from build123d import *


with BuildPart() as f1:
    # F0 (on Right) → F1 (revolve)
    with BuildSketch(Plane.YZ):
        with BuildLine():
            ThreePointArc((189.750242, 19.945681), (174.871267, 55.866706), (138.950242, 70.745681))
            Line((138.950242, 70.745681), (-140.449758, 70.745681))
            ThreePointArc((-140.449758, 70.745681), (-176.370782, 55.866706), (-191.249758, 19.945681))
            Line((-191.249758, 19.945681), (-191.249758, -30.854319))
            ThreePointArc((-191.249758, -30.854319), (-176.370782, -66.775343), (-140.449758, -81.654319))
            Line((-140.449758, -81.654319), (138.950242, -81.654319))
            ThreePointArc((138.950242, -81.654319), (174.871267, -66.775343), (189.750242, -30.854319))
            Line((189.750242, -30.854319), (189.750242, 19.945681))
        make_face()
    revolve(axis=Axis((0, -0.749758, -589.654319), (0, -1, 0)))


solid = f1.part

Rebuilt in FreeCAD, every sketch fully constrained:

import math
import FreeCAD as App
import Part
import Sketcher
from FreeCAD import Vector
Q = App.Units.Quantity

doc = App.newDocument("Part")
body = doc.addObject("PartDesign::Body", "Body")

sketch1 = body.newObject("Sketcher::SketchObject", "Sketch")
sketch1.AttachmentSupport = (doc.getObject("YZ_Plane"), [""])
sketch1.MapMode = "FlatFace"
sketch1.addGeometry(Part.ArcOfCircle(Part.Circle(Vector(139, 20, 0), Vector(0, 0, 1), 51), math.radians(0), math.radians(90)), False)
sketch1.addGeometry(Part.LineSegment(Vector(139, 71, 0), Vector(-140, 71, 0)), False)
sketch1.addGeometry(Part.ArcOfCircle(Part.Circle(Vector(-140, 20, 0), Vector(0, 0, 1), 51), math.radians(90), math.radians(180)), False)
sketch1.addGeometry(Part.LineSegment(Vector(-191, 20, 0), Vector(-191, -31, 0)), False)
sketch1.addGeometry(Part.ArcOfCircle(Part.Circle(Vector(-140, -31, 0), Vector(0, 0, 1), 51), math.radians(-180), math.radians(-90)), False)
sketch1.addGeometry(Part.LineSegment(Vector(-140, -82, 0), Vector(139, -82, 0)), False)
sketch1.addGeometry(Part.ArcOfCircle(Part.Circle(Vector(139, -31, 0), Vector(0, 0, 1), 51), math.radians(-90), math.radians(0)), False)
sketch1.addGeometry(Part.LineSegment(Vector(190, -31, 0), Vector(190, 20, 0)), False)
sketch1.addGeometry(Part.LineSegment(Vector(190, -590, 0), Vector(-191, -590, 0)), True)
sketch1.addConstraint(Sketcher.Constraint("Tangent", 0, 2, 1, 1))
sketch1.addConstraint(Sketcher.Constraint("Tangent", 1, 2, 2, 1))
sketch1.addConstraint(Sketcher.Constraint("Tangent", 2, 2, 3, 1))
sketch1.addConstraint(Sketcher.Constraint("Tangent", 3, 2, 4, 1))
sketch1.addConstraint(Sketcher.Constraint("Tangent", 4, 2, 5, 1))
sketch1.addConstraint(Sketcher.Constraint("Tangent", 5, 2, 6, 1))
sketch1.addConstraint(Sketcher.Constraint("Tangent", 6, 2, 7, 1))
sketch1.addConstraint(Sketcher.Constraint("Tangent", 7, 2, 0, 1))
sketch1.addConstraint(Sketcher.Constraint("Horizontal", 1))
sketch1.addConstraint(Sketcher.Constraint("Vertical", 3))
sketch1.addConstraint(Sketcher.Constraint("Horizontal", 5))
sketch1.addConstraint(Sketcher.Constraint("Vertical", 7))
sketch1.addConstraint(Sketcher.Constraint("Horizontal", 8))
sketch1.addConstraint(Sketcher.Constraint("Equal", 0, 2))
sketch1.addConstraint(Sketcher.Constraint("Equal", 2, 4))
sketch1.addConstraint(Sketcher.Constraint("Equal", 4, 6))
sketch1.addConstraint(Sketcher.Constraint("Vertical", 7, 2, 8, 1))
sketch1.addConstraint(Sketcher.Constraint("Vertical", 3, 2, 8, 2))
sketch1.addConstraint(Sketcher.Constraint("Radius", 0, Q("1.9999999 in")))
sketch1.addConstraint(Sketcher.Constraint("DistanceX", 1, 2, 1, 1, Q("11 in")))
sketch1.addConstraint(Sketcher.Constraint("DistanceY", 3, 2, 3, 1, Q("2 in")))
sketch1.addConstraint(Sketcher.Constraint("DistanceY", 8, 1, 5, 2, Q("20 in")))
sketch1.addConstraint(Sketcher.Constraint("DistanceX", 2, 3, -1, 1, 140.449758))
sketch1.addConstraint(Sketcher.Constraint("DistanceY", -1, 1, 2, 3, 19.945681))
revolution = body.newObject("PartDesign::Revolution", "Revolution")
revolution.Profile = sketch1
revolution.ReferenceAxis = (sketch1, ["Axis0"])
revolution.Angle = 360

doc.recompute()
